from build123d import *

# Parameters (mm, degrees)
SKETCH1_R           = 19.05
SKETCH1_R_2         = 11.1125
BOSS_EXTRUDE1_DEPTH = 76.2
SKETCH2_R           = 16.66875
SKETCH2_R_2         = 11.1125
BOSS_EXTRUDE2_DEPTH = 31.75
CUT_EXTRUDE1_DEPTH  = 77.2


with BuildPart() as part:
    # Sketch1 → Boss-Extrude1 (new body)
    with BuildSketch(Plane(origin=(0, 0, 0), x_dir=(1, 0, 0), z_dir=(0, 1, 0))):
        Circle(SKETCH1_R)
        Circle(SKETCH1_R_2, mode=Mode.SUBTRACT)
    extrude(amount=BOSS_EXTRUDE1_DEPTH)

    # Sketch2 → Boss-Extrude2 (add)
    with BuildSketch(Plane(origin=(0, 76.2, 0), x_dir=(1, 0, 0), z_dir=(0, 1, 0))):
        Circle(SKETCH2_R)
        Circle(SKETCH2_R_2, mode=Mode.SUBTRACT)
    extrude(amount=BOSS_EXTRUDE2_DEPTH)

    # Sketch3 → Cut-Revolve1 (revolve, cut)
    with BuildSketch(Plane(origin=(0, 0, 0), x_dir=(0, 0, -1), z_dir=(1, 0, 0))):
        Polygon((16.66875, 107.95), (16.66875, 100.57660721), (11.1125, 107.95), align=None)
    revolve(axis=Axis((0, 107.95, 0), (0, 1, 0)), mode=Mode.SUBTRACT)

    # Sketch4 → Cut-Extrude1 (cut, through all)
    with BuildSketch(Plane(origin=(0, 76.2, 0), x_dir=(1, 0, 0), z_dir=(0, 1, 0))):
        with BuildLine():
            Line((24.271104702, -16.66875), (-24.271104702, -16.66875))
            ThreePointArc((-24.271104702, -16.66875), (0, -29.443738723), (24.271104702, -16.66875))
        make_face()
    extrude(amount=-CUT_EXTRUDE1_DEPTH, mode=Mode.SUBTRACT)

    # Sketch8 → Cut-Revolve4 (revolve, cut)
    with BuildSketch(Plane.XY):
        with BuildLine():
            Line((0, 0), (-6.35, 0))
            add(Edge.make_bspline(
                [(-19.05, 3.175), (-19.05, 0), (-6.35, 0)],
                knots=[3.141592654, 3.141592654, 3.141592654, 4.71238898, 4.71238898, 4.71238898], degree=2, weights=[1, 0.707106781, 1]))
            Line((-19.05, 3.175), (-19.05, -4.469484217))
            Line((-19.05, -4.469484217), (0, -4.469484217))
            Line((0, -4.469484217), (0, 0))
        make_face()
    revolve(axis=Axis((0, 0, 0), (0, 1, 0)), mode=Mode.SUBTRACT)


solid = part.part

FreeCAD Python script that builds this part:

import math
import FreeCAD as App
import Part
import Sketcher
from FreeCAD import Vector
Q = App.Units.Quantity


def add_polygon(sketch, points):
    """Adds a closed chain of lines whose ends are joined by coincident constraints."""
    first, n = sketch.GeometryCount, len(points)
    for a, b in zip(points, points[1:] + points[:1]):
        sketch.addGeometry(Part.LineSegment(App.Vector(*a, 0), App.Vector(*b, 0)), False)
    for i in range(n):
        sketch.addConstraint(Sketcher.Constraint("Coincident", first + i, 2, first + (i + 1) % n, 1))

doc = App.newDocument("Part")
body = doc.addObject("PartDesign::Body", "Body")

sketch1 = body.newObject("Sketcher::SketchObject", "Sketch")
sketch1.AttachmentSupport = (doc.getObject("XZ_Plane"), [""])
sketch1.MapMode = "FlatFace"
sketch1.addGeometry([
    Part.Circle(Vector(0, 0, 0), Vector(0, 0, 1), 19),
    Part.Circle(Vector(0, 0, 0), Vector(0, 0, 1), 11),
], False)
sketch1.addConstraint([
    Sketcher.Constraint("Coincident", 0, 3, -1, 1),
    Sketcher.Constraint("Coincident", 1, 3, -1, 1),
    Sketcher.Constraint("Diameter", 0, Q("1.5 in")),
    Sketcher.Constraint("Diameter", 1, Q("0.875 in")),
])
pad1 = body.newObject("PartDesign::Pad", "Pad")
pad1.Profile = sketch1
pad1.Length = Q("3 in")
pad1.Reversed = True

sketch2 = body.newObject("Sketcher::SketchObject", "Sketch001")
sketch2.AttachmentSupport = (doc.getObject("XZ_Plane"), [""])
sketch2.MapMode = "FlatFace"
sketch2.AttachmentOffset = App.Placement(Vector(0, 0, -3 * 25.4), App.Rotation())
sketch2.addGeometry([
    Part.Circle(Vector(0, 0, 0), Vector(0, 0, 1), 17),
    Part.Circle(Vector(0, 0, 0), Vector(0, 0, 1), 11),
], False)
sketch2.addConstraint([
    Sketcher.Constraint("Coincident", 0, 3, -1, 1),
    Sketcher.Constraint("Coincident", 1, 3, -1, 1),
    Sketcher.Constraint("Diameter", 0, Q("1.3125 in")),
    Sketcher.Constraint("Diameter", 1, Q("0.875 in")),
])
pad2 = body.newObject("PartDesign::Pad", "Pad001")
pad2.Profile = sketch2
pad2.Length = Q("1.25 in")
pad2.Reversed = True

sketch3 = body.newObject("Sketcher::SketchObject", "Sketch002")
sketch3.AttachmentSupport = (doc.getObject("YZ_Plane"), [""])
sketch3.MapMode = "FlatFace"
add_polygon(sketch3, [(101, -17), (108, -17), (108, -11)])
sketch3.addConstraint([
    Sketcher.Constraint("Horizontal", 0),
    Sketcher.Constraint("Vertical", 1),
    Sketcher.Constraint("Angle", 2, Q("-143 deg")),
    Sketcher.Constraint("DistanceY", 1, 1, 1, 2, Q("0.21875 in")),
    Sketcher.Constraint("DistanceX", -1, 1, 0, 2, Q("4.25 in")),
    Sketcher.Constraint("DistanceY", 0, 2, -1, 1, Q("0.65625 in")),
])
groove = body.newObject("PartDesign::Groove", "Groove")
groove.Profile = sketch3
groove.ReferenceAxis = (sketch3, ["H_Axis"])
groove.Angle = 360

sketch4 = body.newObject("Sketcher::SketchObject", "Sketch003")
sketch4.AttachmentSupport = (doc.getObject("XZ_Plane"), [""])
sketch4.MapMode = "FlatFace"
sketch4.AttachmentOffset = App.Placement(Vector(0, 0, -3 * 25.4), App.Rotation())
sketch4.addGeometry([
    Part.LineSegment(Vector(24, 17, 0), Vector(-24, 17, 0)),
    Part.ArcOfCircle(Part.Circle(Vector(0, 0, 0), Vector(0, 0, 1), 29), math.radians(34), math.radians(146)),
], False)
sketch4.addConstraint([
    Sketcher.Constraint("Coincident", 0, 1, 1, 1),
    Sketcher.Constraint("Coincident", 1, 2, 0, 2),
    Sketcher.Constraint("Horizontal", 0),
    Sketcher.Constraint("Coincident", 1, 3, -1, 1),
    Sketcher.Constraint("DistanceY", -1, 1, 0, 1, Q("0.65625 in")),
    Sketcher.Constraint("Radius", 1, Q("29.443739 mm")),
])
pocket1 = body.newObject("PartDesign::Pocket", "Pocket")
pocket1.Profile = sketch4
pocket1.Type = "ThroughAll"
pocket1.Reversed = True

sketch5 = body.newObject("Sketcher::SketchObject", "Sketch004")
sketch5.AttachmentSupport = (doc.getObject("XY_Plane"), [""])
sketch5.MapMode = "FlatFace"
sketch5.addGeometry([
    Part.LineSegment(Vector(0, 0, 0), Vector(-6.35, 0, 0)),
    Part.BSplineCurve([Vector(-19.05, 3.175, 0), Vector(-19.05, 0, 0), Vector(-6.35, 0, 0)], [3, 3], [3.141592654, 4.71238898], False, 2, [1, 0.707106781, 1], False),
    Part.LineSegment(Vector(-19.05, 3.175, 0), Vector(-19.05, -4.469484, 0)),
    Part.LineSegment(Vector(-19.05, -4.469484, 0), Vector(0, -4.469484, 0)),
    Part.LineSegment(Vector(0, -4.469484, 0), Vector(0, 0, 0)),
], False)
sketch5.addConstraint([
    Sketcher.Constraint("Block", 1),
    Sketcher.Constraint("Coincident", 0, 2, 1, 2),
    Sketcher.Constraint("Coincident", 1, 1, 2, 1),
    Sketcher.Constraint("Coincident", 2, 2, 3, 1),
    Sketcher.Constraint("Coincident", 3, 2, 4, 1),
    Sketcher.Constraint("Coincident", 4, 2, 0, 1),
    Sketcher.Constraint("Horizontal", 0),
    Sketcher.Constraint("Vertical", 2),
    Sketcher.Constraint("Horizontal", 3),
    Sketcher.Constraint("Vertical", 4),
    Sketcher.Constraint("PointOnObject", 3, 2, -2),
    Sketcher.Constraint("DistanceY", 2, 2, 2, 1, Q("7.644484 mm")),
])
groove2 = body.newObject("PartDesign::Groove", "Groove001")
groove2.Profile = sketch5
groove2.ReferenceAxis = (sketch5, ["V_Axis"])
groove2.Angle = 360

doc.recompute()
